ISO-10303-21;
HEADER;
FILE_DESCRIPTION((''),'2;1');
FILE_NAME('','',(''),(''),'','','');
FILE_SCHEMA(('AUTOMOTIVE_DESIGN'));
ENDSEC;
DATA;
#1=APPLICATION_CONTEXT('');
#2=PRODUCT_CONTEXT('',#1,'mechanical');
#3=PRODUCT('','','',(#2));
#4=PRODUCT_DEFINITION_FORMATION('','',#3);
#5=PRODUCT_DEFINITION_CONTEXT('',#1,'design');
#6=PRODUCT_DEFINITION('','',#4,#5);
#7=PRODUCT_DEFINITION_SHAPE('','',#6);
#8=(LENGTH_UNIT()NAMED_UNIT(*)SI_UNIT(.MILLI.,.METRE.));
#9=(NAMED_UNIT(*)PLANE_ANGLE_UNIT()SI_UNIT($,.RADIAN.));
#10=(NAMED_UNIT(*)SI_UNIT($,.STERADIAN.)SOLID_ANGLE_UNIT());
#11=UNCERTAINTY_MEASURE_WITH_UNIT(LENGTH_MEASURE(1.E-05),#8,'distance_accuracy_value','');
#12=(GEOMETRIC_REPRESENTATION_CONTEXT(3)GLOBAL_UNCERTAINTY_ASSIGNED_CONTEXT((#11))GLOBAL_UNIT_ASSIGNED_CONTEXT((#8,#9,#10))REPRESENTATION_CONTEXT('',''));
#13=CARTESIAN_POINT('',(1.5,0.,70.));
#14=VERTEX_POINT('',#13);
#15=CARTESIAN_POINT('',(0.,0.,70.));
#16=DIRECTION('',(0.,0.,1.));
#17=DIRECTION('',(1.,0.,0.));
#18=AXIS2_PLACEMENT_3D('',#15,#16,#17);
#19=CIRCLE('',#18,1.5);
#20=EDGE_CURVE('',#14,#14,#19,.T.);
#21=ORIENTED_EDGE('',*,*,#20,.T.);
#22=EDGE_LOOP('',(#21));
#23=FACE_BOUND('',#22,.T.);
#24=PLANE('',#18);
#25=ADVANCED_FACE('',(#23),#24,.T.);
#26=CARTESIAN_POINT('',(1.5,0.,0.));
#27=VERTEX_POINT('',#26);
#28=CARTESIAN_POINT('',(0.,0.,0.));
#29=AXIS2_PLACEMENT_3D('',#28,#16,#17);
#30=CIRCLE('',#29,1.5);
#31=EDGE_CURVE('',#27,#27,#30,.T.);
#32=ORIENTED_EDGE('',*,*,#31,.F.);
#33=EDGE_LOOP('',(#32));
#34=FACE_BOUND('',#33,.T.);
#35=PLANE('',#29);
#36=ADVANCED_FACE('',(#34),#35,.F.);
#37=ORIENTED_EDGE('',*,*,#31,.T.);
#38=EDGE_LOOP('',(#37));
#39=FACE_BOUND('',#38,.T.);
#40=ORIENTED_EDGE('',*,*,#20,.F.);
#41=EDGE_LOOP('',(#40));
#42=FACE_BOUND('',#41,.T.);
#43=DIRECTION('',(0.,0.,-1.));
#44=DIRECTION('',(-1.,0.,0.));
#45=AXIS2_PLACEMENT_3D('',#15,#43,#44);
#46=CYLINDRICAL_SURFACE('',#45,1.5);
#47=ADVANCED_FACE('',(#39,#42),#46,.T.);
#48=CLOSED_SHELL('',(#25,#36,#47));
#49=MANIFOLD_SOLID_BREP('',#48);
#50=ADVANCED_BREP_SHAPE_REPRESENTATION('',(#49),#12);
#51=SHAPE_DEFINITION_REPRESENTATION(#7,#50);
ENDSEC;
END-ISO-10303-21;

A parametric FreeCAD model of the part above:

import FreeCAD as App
import Part
import Sketcher
Q = App.Units.Quantity

doc = App.newDocument("Part")
params = doc.addObject("Spreadsheet::Sheet", "Params")
for row, (alias, value) in enumerate([
    ("sketch1_diameter", "3 mm"),
    ("pad1_length", "70 mm"),
], start=1):
    params.set(f"A{row}", alias)
    params.set(f"B{row}", "=" + value)
    params.setAlias(f"B{row}", alias)

body = doc.addObject("PartDesign::Body", "Body")

sketch1 = body.newObject("Sketcher::SketchObject", "Sketch")
sketch1.AttachmentSupport = (doc.getObject("XY_Plane"), [""])
sketch1.MapMode = "FlatFace"
sketch1.addGeometry(Part.Circle(App.Vector(0, 0, 0), App.Vector(0, 0, 1), 1.5), False)
sketch1.addConstraint([
    Sketcher.Constraint("Coincident", 0, 3, -1, 1),
    Sketcher.Constraint("Diameter", 0, Q("3 mm")),
])
sketch1.setExpression("Constraints[1]", "Params.sketch1_diameter")
pad1 = body.newObject("PartDesign::Pad", "Pad")
pad1.Profile = sketch1
pad1.setExpression("Length", "Params.pad1_length")

doc.recompute()
